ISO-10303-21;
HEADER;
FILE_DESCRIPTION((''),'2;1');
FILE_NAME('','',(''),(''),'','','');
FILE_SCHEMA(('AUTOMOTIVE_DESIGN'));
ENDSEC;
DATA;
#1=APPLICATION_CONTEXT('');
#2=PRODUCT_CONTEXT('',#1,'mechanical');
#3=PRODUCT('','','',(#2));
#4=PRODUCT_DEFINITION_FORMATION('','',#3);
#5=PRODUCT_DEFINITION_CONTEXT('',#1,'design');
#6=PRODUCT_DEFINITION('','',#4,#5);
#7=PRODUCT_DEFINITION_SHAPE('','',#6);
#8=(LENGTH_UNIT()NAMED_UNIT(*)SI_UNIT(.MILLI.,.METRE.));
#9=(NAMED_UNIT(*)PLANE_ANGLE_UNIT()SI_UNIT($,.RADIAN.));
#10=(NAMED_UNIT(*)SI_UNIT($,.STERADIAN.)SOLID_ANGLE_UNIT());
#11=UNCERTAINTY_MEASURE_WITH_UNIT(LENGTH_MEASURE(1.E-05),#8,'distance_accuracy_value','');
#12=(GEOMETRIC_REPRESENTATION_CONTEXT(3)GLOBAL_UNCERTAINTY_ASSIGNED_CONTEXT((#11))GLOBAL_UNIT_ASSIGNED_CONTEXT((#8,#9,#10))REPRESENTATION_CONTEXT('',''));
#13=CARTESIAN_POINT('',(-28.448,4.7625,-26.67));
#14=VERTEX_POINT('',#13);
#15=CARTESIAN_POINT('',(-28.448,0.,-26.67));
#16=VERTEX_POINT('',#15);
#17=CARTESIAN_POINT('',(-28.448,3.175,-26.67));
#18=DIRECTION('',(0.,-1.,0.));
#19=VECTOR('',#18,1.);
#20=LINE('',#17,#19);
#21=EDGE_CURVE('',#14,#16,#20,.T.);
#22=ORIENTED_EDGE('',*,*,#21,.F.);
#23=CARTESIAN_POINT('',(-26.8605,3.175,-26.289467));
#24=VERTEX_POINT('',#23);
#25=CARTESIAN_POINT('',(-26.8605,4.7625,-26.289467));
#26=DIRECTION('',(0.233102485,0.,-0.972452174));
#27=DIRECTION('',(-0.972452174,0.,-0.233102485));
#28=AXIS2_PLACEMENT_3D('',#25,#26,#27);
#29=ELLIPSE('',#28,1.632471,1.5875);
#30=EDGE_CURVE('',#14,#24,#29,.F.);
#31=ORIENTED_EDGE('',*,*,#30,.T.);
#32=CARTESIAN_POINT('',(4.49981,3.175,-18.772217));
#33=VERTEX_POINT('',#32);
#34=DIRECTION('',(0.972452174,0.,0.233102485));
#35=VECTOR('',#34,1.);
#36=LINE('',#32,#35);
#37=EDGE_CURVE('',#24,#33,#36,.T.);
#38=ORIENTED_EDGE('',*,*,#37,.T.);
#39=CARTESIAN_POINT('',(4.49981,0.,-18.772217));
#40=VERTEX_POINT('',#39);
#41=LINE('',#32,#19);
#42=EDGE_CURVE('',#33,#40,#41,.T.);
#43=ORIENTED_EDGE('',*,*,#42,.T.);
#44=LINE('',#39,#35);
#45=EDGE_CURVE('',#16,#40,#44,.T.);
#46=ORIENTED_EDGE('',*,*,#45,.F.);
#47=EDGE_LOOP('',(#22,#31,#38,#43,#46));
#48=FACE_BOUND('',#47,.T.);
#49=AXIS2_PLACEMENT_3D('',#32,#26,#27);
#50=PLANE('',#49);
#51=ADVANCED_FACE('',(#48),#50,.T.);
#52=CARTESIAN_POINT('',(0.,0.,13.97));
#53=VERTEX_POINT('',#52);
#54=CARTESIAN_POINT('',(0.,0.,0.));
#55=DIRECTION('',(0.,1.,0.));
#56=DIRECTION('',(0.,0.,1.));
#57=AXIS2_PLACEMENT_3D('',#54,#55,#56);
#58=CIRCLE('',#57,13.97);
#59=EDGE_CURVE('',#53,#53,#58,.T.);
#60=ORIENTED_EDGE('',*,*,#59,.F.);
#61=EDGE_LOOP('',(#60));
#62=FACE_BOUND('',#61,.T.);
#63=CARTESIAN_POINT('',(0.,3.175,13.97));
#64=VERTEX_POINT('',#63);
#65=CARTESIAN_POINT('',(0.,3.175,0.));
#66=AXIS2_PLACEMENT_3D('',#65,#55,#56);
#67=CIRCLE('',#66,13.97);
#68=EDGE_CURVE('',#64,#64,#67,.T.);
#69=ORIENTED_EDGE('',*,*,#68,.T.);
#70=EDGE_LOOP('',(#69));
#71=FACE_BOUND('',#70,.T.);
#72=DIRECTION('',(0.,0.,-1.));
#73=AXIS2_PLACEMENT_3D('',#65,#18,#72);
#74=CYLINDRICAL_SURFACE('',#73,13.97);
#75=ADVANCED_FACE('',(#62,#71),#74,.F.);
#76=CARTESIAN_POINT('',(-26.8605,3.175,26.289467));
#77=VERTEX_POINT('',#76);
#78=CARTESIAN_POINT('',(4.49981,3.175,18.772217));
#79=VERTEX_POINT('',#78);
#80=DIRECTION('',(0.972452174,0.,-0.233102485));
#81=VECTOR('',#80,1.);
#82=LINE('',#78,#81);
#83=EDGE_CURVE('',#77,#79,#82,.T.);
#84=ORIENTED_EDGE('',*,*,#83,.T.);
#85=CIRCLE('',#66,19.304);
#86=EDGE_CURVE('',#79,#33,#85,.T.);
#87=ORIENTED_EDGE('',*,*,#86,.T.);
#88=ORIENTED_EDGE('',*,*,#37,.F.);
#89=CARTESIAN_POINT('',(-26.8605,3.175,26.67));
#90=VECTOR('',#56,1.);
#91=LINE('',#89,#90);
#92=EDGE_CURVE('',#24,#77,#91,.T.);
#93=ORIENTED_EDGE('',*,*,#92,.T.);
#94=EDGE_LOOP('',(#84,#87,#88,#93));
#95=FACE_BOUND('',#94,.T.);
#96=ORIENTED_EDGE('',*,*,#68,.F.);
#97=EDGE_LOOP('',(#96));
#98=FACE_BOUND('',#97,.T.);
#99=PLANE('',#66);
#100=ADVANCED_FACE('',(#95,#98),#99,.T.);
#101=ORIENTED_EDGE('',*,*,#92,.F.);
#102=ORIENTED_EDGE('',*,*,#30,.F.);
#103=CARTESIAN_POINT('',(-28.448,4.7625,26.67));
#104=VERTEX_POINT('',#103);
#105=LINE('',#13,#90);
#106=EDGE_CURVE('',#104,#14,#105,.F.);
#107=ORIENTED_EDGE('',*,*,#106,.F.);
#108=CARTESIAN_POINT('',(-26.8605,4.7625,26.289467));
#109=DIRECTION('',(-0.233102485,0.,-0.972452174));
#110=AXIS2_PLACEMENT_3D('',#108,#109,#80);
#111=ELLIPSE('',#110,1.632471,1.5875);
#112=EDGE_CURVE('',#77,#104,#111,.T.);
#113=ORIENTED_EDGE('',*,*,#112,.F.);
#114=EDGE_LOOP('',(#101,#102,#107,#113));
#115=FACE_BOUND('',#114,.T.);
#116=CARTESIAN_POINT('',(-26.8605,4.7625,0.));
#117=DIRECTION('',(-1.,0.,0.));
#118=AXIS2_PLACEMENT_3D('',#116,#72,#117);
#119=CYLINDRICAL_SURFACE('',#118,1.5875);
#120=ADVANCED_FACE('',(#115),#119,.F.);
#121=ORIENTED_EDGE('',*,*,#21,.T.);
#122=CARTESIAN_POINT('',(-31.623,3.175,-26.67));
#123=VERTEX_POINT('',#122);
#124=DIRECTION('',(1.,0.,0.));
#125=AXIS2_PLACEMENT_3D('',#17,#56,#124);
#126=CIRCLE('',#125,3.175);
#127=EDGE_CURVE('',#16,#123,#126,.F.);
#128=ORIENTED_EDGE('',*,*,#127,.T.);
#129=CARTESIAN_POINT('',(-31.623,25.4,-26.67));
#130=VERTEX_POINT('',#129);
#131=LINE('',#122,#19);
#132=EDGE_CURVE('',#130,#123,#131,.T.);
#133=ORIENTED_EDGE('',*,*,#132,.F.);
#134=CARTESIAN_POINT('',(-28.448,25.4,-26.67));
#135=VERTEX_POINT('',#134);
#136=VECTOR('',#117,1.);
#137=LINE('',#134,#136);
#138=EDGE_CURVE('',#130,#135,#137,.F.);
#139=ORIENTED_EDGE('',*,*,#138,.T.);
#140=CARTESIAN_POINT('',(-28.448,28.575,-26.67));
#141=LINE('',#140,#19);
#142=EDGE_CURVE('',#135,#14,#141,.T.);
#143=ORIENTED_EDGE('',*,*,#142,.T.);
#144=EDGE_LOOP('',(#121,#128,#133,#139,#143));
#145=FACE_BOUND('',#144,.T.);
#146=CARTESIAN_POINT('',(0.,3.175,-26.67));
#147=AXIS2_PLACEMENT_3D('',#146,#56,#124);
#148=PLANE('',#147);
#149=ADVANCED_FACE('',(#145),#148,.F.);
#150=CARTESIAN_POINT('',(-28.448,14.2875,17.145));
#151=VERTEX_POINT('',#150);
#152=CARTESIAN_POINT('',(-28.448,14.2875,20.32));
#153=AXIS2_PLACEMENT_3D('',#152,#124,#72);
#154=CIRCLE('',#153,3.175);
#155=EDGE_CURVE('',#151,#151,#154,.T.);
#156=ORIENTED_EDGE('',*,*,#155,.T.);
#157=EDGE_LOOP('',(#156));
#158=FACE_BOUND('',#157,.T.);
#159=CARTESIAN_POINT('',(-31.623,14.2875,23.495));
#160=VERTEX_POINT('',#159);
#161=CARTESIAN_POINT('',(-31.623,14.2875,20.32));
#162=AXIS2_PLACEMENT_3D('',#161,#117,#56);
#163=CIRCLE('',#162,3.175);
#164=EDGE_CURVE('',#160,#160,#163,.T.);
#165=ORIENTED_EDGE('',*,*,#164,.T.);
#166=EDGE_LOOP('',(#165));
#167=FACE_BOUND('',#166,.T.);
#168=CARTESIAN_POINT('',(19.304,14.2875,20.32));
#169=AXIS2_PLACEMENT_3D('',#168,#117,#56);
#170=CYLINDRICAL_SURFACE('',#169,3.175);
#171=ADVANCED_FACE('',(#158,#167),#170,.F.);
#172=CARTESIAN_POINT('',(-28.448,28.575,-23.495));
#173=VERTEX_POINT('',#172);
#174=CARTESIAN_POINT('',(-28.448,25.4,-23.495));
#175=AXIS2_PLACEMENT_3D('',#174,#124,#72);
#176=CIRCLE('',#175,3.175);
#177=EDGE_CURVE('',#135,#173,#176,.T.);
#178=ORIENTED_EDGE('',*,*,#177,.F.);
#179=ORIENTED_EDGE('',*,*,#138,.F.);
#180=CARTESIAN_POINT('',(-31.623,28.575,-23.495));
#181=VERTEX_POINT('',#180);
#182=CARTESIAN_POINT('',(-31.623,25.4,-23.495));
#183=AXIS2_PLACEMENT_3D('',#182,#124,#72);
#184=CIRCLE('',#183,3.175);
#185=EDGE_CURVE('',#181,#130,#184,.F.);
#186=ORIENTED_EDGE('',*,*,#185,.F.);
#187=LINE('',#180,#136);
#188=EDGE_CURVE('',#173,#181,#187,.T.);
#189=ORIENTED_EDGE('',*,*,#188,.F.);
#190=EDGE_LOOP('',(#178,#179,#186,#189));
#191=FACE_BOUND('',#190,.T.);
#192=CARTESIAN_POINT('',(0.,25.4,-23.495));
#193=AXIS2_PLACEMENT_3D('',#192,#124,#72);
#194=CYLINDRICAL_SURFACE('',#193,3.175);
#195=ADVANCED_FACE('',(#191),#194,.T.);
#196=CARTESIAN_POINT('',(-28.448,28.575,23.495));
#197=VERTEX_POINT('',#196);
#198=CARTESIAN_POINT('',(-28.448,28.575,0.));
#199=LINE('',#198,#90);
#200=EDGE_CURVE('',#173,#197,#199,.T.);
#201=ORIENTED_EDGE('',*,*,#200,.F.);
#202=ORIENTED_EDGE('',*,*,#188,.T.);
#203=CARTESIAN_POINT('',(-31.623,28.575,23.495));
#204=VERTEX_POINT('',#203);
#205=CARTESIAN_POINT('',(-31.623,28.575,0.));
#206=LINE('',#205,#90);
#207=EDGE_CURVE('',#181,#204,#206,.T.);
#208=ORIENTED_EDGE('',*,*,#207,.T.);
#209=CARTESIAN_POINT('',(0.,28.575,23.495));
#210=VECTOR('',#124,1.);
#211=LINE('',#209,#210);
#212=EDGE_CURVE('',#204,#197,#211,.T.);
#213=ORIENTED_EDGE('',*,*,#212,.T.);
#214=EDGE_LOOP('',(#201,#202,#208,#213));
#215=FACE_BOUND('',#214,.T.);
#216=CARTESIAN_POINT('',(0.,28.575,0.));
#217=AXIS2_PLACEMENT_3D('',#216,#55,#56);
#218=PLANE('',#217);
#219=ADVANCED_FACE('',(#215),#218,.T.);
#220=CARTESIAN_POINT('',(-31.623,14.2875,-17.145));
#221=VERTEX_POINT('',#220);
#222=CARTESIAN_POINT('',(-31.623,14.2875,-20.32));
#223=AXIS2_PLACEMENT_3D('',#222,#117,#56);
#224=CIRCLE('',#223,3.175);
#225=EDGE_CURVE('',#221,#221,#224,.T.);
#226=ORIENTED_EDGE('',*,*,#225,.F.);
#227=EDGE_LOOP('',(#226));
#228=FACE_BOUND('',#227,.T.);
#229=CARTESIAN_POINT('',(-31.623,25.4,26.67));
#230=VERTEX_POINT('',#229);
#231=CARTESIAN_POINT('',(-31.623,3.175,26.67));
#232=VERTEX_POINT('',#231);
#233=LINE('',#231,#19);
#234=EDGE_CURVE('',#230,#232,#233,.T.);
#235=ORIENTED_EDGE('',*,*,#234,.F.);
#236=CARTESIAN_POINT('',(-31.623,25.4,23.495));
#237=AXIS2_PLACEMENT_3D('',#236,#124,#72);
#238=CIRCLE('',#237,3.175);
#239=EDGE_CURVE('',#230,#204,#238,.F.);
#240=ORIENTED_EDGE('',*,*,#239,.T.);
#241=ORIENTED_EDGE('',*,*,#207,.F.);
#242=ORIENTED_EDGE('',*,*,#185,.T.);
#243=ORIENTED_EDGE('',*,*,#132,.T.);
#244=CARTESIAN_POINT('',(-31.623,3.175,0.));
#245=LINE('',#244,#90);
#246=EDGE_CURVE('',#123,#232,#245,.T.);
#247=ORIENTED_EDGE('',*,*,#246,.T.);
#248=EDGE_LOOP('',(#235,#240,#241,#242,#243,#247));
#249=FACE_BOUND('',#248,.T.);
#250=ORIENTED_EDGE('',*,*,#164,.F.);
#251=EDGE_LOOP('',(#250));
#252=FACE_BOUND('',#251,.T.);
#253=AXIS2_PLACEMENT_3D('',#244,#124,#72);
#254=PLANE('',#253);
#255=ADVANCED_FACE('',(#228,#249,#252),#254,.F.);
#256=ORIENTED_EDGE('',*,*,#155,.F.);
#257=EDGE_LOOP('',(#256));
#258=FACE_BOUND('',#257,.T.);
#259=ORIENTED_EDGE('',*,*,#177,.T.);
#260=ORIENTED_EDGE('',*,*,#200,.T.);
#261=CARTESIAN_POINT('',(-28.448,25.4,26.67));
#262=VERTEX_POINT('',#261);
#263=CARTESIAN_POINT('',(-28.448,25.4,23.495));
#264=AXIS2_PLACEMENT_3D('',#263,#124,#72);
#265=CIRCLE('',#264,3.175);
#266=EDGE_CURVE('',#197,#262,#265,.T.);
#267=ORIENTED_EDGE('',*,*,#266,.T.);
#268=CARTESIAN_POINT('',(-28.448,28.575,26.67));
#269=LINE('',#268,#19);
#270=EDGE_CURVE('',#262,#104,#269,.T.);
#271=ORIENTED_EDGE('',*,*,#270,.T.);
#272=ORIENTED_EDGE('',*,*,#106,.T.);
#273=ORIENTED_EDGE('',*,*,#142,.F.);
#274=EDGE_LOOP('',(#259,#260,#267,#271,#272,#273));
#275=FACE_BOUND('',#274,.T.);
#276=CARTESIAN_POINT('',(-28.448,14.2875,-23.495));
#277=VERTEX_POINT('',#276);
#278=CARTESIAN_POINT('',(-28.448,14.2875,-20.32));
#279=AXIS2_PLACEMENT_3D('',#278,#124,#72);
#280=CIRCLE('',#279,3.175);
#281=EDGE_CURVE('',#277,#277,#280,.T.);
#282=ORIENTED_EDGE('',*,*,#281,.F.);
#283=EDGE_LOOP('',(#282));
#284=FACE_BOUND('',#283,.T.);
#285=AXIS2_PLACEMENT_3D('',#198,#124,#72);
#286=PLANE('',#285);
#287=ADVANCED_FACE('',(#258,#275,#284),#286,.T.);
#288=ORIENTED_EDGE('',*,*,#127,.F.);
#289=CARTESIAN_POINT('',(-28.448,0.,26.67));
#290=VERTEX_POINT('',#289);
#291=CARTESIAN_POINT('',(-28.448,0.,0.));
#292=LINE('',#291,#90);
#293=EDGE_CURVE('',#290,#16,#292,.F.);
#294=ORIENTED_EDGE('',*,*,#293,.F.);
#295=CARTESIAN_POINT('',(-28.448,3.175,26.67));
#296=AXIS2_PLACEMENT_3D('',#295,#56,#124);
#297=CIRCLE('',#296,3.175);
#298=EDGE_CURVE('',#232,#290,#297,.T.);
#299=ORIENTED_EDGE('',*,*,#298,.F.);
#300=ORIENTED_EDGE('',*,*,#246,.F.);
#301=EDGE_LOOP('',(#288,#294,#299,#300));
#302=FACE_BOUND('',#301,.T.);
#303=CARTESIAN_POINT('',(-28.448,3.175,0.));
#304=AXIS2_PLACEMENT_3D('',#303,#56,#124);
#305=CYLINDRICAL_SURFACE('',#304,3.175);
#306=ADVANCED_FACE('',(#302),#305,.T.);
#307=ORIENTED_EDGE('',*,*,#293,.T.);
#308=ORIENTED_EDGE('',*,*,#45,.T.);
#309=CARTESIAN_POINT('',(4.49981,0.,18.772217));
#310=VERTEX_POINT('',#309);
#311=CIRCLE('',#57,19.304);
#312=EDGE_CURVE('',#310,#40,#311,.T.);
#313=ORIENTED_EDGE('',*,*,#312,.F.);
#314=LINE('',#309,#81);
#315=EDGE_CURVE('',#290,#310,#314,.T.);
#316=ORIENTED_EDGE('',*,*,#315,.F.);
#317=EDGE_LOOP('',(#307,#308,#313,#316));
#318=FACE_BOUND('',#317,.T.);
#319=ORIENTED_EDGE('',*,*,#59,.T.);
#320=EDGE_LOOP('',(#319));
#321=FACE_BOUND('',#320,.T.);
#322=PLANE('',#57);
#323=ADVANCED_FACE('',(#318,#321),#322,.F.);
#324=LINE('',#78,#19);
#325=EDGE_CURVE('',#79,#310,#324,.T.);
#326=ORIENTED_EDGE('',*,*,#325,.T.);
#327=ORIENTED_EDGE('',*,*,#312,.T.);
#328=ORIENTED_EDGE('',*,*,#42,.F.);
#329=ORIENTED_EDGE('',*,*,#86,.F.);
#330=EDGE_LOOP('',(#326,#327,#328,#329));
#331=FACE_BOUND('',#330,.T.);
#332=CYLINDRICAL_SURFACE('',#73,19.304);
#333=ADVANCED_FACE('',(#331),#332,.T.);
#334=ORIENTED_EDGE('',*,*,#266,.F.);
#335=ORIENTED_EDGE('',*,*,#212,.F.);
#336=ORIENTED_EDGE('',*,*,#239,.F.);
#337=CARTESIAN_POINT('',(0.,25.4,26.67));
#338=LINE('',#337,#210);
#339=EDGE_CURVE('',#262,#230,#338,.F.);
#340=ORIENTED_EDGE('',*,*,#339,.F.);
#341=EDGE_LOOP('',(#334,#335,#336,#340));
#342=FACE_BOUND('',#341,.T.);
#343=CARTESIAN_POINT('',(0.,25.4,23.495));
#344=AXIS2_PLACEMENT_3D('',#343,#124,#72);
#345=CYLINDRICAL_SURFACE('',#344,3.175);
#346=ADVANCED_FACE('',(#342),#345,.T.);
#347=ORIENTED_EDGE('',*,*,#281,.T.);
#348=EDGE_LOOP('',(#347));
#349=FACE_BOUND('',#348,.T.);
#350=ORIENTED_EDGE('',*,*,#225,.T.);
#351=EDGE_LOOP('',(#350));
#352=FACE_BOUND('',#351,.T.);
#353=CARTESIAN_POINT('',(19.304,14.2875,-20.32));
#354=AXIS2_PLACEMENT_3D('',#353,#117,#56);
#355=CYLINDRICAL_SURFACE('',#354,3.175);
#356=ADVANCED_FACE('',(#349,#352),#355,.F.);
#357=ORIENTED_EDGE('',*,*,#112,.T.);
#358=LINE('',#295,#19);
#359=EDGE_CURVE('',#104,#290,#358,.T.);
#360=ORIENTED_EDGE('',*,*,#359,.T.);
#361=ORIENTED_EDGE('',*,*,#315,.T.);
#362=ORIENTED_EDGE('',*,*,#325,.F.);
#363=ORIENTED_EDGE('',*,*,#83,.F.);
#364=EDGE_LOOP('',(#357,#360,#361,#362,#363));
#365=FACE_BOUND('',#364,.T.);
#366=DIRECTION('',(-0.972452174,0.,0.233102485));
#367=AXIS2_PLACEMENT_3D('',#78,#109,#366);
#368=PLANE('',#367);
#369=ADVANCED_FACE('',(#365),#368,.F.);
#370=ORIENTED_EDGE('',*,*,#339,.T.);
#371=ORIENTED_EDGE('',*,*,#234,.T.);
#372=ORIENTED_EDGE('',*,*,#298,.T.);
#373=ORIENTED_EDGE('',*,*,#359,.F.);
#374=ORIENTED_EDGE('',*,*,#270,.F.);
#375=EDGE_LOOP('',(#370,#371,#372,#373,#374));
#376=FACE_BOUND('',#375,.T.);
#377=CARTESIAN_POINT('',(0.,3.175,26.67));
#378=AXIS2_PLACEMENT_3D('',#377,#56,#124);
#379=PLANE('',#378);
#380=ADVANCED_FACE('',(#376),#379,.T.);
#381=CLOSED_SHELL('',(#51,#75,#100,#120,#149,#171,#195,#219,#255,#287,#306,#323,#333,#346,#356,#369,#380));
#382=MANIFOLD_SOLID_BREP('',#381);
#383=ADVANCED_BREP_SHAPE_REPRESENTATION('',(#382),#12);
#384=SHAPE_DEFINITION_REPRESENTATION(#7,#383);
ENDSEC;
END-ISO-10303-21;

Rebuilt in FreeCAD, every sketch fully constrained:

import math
import FreeCAD as App
import Part
import Sketcher
from FreeCAD import Vector
Q = App.Units.Quantity


def edges_at(feature, points):
    """Names of the edges that pass closest to the given points."""
    edges = feature.Shape.Edges
    near = lambda p: min(range(len(edges)), key=lambda i: edges[i].distToShape(Part.Vertex(*p))[0])
    return sorted({f"Edge{near(p) + 1}" for p in points})


def add_polygon(sketch, points):
    """Adds a closed chain of lines whose ends are joined by coincident constraints."""
    first, n = sketch.GeometryCount, len(points)
    for a, b in zip(points, points[1:] + points[:1]):
        sketch.addGeometry(Part.LineSegment(App.Vector(*a, 0), App.Vector(*b, 0)), False)
    for i in range(n):
        sketch.addConstraint(Sketcher.Constraint("Coincident", first + i, 2, first + (i + 1) % n, 1))

doc = App.newDocument("Part")
body = doc.addObject("PartDesign::Body", "Body")

sketch1 = body.newObject("Sketcher::SketchObject", "Sketch")
sketch1.AttachmentSupport = (doc.getObject("XZ_Plane"), [""])
sketch1.MapMode = "FlatFace"
sketch1.addGeometry(Part.ArcOfCircle(Part.Circle(Vector(0, 0, 0), Vector(0, 0, 1), 19.304), math.radians(-76.520203), math.radians(76.520203)), False)
sketch1.addGeometry(Part.LineSegment(Vector(4.49981, -18.772217, 0), Vector(-28.448, -26.67, 0)), False)
sketch1.addGeometry(Part.LineSegment(Vector(-28.448, -26.67, 0), Vector(-31.623, -26.67, 0)), False)
sketch1.addGeometry(Part.LineSegment(Vector(-31.623, -26.67, 0), Vector(-31.623, 26.67, 0)), False)
sketch1.addGeometry(Part.LineSegment(Vector(-31.623, 26.67, 0), Vector(-28.448, 26.67, 0)), False)
sketch1.addGeometry(Part.LineSegment(Vector(-28.448, 26.67, 0), Vector(4.49981, 18.772217, 0)), False)
sketch1.addGeometry(Part.Circle(Vector(0, 0, 0), Vector(0, 0, 1), 13.97), False)
sketch1.addConstraint(Sketcher.Constraint("Tangent", 0, 1, 1, 1))
sketch1.addConstraint(Sketcher.Constraint("Coincident", 1, 2, 2, 1))
sketch1.addConstraint(Sketcher.Constraint("Coincident", 2, 2, 3, 1))
sketch1.addConstraint(Sketcher.Constraint("Coincident", 3, 2, 4, 1))
sketch1.addConstraint(Sketcher.Constraint("Coincident", 4, 2, 5, 1))
sketch1.addConstraint(Sketcher.Constraint("Tangent", 5, 2, 0, 2))
sketch1.addConstraint(Sketcher.Constraint("Horizontal", 2))
sketch1.addConstraint(Sketcher.Constraint("Vertical", 3))
sketch1.addConstraint(Sketcher.Constraint("Horizontal", 4))
sketch1.addConstraint(Sketcher.Constraint("Coincident", 0, 3, -1, 1))
sketch1.addConstraint(Sketcher.Constraint("Coincident", 6, 3, -1, 1))
sketch1.addConstraint(Sketcher.Constraint("Symmetric", 1, 2, 4, 2, -1))
sketch1.addConstraint(Sketcher.Constraint("Diameter", 6, Q("1.1 in")))
sketch1.addConstraint(Sketcher.Constraint("Radius", 0, Q("0.76 in")))
sketch1.addConstraint(Sketcher.Constraint("DistanceY", 3, 1, 3, 2, Q("2.1 in")))
sketch1.addConstraint(Sketcher.Constraint("DistanceX", 2, 2, 2, 1, Q("0.125 in")))
sketch1.addConstraint(Sketcher.Constraint("DistanceX", 1, 2, -1, 1, Q("1.12 in")))
pad1 = body.newObject("PartDesign::Pad", "Pad")
pad1.Profile = sketch1
pad1.Length = Q("0.125 in")
pad1.Reversed = True

sketch2 = body.newObject("Sketcher::SketchObject", "Sketch001")
sketch2.AttachmentSupport = (doc.getObject("XZ_Plane"), [""])
sketch2.MapMode = "FlatFace"
sketch2.AttachmentOffset = App.Placement(Vector(0, 0, -0.125 * 25.4), App.Rotation())
add_polygon(sketch2, [(-31.623, -26.67), (-31.623, 26.67), (-28.448, 26.67), (-28.448, -26.67)])
sketch2.addConstraint(Sketcher.Constraint("Vertical", 0))
sketch2.addConstraint(Sketcher.Constraint("Horizontal", 1))
sketch2.addConstraint(Sketcher.Constraint("Vertical", 2))
sketch2.addConstraint(Sketcher.Constraint("Horizontal", 3))
sketch2.addConstraint(Sketcher.Constraint("DistanceY", 0, 1, 0, 2, Q("2.1 in")))
sketch2.addConstraint(Sketcher.Constraint("DistanceX", 1, 1, 1, 2, Q("0.125 in")))
sketch2.addConstraint(Sketcher.Constraint("DistanceY", -1, 1, 0, 2, Q("1.05 in")))
sketch2.addConstraint(Sketcher.Constraint("DistanceX", 1, 2, -1, 1, Q("1.12 in")))
pad2 = body.newObject("PartDesign::Pad", "Pad001")
pad2.Profile = sketch2
pad2.Length = Q("1 in")
pad2.Reversed = True

sketch3 = body.newObject("Sketcher::SketchObject", "Sketch002")
sketch3.AttachmentSupport = (doc.getObject("YZ_Plane"), [""])
sketch3.MapMode = "FlatFace"
sketch3.AttachmentOffset = App.Placement(Vector(0, 0, -1.245 * 25.4), App.Rotation())
sketch3.addGeometry(Part.ArcOfCircle(Part.Circle(Vector(14.2875, -20.32, 0), Vector(0, 0, 1), 3.175), math.radians(0), math.radians(90)), False)
sketch3.addGeometry(Part.ArcOfCircle(Part.Circle(Vector(14.2875, -20.32, 0), Vector(0, 0, 1), 3.175), math.radians(180), math.radians(360)), False)
sketch3.addGeometry(Part.ArcOfCircle(Part.Circle(Vector(14.2875, -20.32, 0), Vector(0, 0, 1), 3.175), math.radians(90), math.radians(180)), False)
sketch3.addGeometry(Part.Circle(Vector(14.2875, 20.32, 0), Vector(0, 0, 1), 3.175), False)
sketch3.addConstraint(Sketcher.Constraint("Tangent", 0, 1, 1, 2))
sketch3.addConstraint(Sketcher.Constraint("Tangent", 1, 1, 2, 2))
sketch3.addConstraint(Sketcher.Constraint("Tangent", 2, 1, 0, 2))
sketch3.addConstraint(Sketcher.Constraint("Equal", 2, 3))
sketch3.addConstraint(Sketcher.Constraint("Symmetric", 0, 3, 3, 3, -1))
sketch3.addConstraint(Sketcher.Constraint("Horizontal", 2, 3, 0, 1))
sketch3.addConstraint(Sketcher.Constraint("Horizontal", 0, 1, 1, 1))
sketch3.addConstraint(Sketcher.Constraint("Vertical", 3, 3, 2, 1))
sketch3.addConstraint(Sketcher.Constraint("Diameter", 3, Q("0.25 in")))
sketch3.addConstraint(Sketcher.Constraint("DistanceY", 0, 3, -1, 1, Q("0.8 in")))
sketch3.addConstraint(Sketcher.Constraint("DistanceX", -1, 1, 0, 3, Q("0.5625 in")))
pocket1 = body.newObject("PartDesign::Pocket", "Pocket")
pocket1.Profile = sketch3
pocket1.Type = "ThroughAll"
pocket1.Reversed = True
doc.recompute()

fillet = body.newObject("PartDesign::Fillet", "Fillet")
fillet.Base = (pocket1, edges_at(pocket1, [(-28.448, 3.175, 0)]))
fillet.Radius = Q("0.0625 in")
doc.recompute()

fillet2 = body.newObject("PartDesign::Fillet", "Fillet001")
fillet2.Base = (fillet, edges_at(fillet, [(-31.623, 0, 0)]))
fillet2.Radius = Q("0.125 in")
doc.recompute()

fillet3 = body.newObject("PartDesign::Fillet", "Fillet002")
fillet3.Base = (fillet2, edges_at(fillet2, [(-30.035, 28.575, -26.67), (-30.035, 28.575, 26.67)]))
fillet3.Radius = Q("0.125 in")

doc.recompute()
